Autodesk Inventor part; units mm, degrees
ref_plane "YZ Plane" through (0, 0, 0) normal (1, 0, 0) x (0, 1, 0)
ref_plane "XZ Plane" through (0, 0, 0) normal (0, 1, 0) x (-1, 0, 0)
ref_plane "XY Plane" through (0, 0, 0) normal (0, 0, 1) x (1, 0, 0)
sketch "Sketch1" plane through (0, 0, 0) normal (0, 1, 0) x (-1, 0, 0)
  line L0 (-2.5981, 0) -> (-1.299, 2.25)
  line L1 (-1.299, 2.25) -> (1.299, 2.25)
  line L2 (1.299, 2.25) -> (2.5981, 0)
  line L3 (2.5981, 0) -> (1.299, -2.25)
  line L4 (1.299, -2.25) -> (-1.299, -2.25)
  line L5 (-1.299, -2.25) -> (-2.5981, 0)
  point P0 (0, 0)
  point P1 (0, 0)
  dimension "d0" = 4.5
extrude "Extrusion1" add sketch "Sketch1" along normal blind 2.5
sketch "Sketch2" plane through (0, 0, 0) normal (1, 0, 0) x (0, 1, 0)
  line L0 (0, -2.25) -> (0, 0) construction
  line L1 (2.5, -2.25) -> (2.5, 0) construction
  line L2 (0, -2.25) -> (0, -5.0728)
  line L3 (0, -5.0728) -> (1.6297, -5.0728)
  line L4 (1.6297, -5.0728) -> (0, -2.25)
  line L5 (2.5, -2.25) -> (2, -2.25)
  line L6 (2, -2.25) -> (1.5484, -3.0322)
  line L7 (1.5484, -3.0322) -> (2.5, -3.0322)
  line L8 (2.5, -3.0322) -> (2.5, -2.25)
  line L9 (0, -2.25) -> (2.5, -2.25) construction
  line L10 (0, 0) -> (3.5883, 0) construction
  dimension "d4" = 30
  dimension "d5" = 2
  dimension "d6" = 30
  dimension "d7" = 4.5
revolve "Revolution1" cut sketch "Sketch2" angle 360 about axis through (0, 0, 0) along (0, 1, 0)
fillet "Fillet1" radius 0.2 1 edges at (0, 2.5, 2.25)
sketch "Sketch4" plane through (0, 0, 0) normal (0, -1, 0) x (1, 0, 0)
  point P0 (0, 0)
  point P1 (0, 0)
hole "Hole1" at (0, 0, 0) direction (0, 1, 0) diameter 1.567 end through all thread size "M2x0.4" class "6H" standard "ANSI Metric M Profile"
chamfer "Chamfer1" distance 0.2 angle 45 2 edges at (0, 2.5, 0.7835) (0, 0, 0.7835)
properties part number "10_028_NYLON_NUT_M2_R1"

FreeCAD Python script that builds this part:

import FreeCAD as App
import Part
import Sketcher

V = App.Vector
Q = App.Units.Quantity


def edges_at(feature, points):
    """Names of the edges that pass closest to the given points."""
    edges = feature.Shape.Edges
    near = lambda p: min(range(len(edges)), key=lambda i: edges[i].distToShape(Part.Vertex(*p))[0])
    return sorted({f"Edge{near(p) + 1}" for p in points})

doc = App.newDocument("Part")
params = doc.addObject("Spreadsheet::Sheet", "Params")
for row, (alias, value) in enumerate([
    ("pad1_length", "2.5 mm"),
    ("sketch2_width", "0.5 mm"),
    ("groove_angle", "360 deg"),
    ("fillet_radius", "0.2 mm"),
    ("hole_diameter", "1.567 mm"),
    ("chamfer_size", "0.2 mm"),
], start=1):
    params.set(f"A{row}", alias)
    params.set(f"B{row}", "=" + value)
    params.setAlias(f"B{row}", alias)

body = doc.addObject("PartDesign::Body", "Body")

sketch1 = body.newObject("Sketcher::SketchObject", "Sketch")
sketch1.AttachmentSupport = (doc.getObject("XZ_Plane"), [""])
sketch1.MapMode = "FlatFace"
sketch1.addGeometry([
    Part.LineSegment(V(1.299, 2.25, 0), V(2.5981, 0, 0)),
    Part.LineSegment(V(2.5981, 0, 0), V(1.299, -2.25, 0)),
    Part.LineSegment(V(1.299, -2.25, 0), V(-1.299, -2.25, 0)),
    Part.LineSegment(V(-1.299, -2.25, 0), V(-2.5981, 0, 0)),
    Part.LineSegment(V(-2.5981, 0, 0), V(-1.299, 2.25, 0)),
    Part.LineSegment(V(-1.299, 2.25, 0), V(1.299, 2.25, 0)),
], False)
sketch1.addConstraint([
    Sketcher.Constraint("Coincident", 0, 2, 1, 1),
    Sketcher.Constraint("Coincident", 1, 2, 2, 1),
    Sketcher.Constraint("Coincident", 2, 2, 3, 1),
    Sketcher.Constraint("Coincident", 3, 2, 4, 1),
    Sketcher.Constraint("Coincident", 4, 2, 5, 1),
    Sketcher.Constraint("Coincident", 5, 2, 0, 1),
    Sketcher.Constraint("Horizontal", 2),
    Sketcher.Constraint("Horizontal", 5),
    Sketcher.Constraint("Symmetric", 0, 2, 3, 2, -1, 1),
    Sketcher.Constraint("Symmetric", 1, 2, 4, 2, -1, 1),
    Sketcher.Constraint("PointOnObject", 0, 2, -1),
    Sketcher.Constraint("Parallel", 0, 3),
    Sketcher.Constraint("Vertical", 2, 2, 4, 2),
    Sketcher.Constraint("DistanceY", 2, 2, 4, 2, 4.5),
    Sketcher.Constraint("Angle", 0, Q("-59.9988 deg")),
    Sketcher.Constraint("DistanceX", 2, 2, 2, 1, 2.598),
])
pad1 = body.newObject("PartDesign::Pad", "Pad")
pad1.Profile = sketch1
pad1.setExpression("Length", "Params.pad1_length")
pad1.Reversed = True

sketch2 = body.newObject("Sketcher::SketchObject", "Sketch001")
sketch2.AttachmentSupport = (doc.getObject("YZ_Plane"), [""])
sketch2.MapMode = "FlatFace"
sketch2.addGeometry([
    Part.LineSegment(V(1.6297, -5.0728, 0), V(0, -2.25, 0)),
    Part.LineSegment(V(0, -2.25, 0), V(0, -5.0728, 0)),
    Part.LineSegment(V(0, -5.0728, 0), V(1.6297, -5.0728, 0)),
    Part.LineSegment(V(2.5, -3.0322, 0), V(2.5, -2.25, 0)),
    Part.LineSegment(V(2.5, -2.25, 0), V(2, -2.25, 0)),
    Part.LineSegment(V(2, -2.25, 0), V(1.5484, -3.0322, 0)),
    Part.LineSegment(V(1.5484, -3.0322, 0), V(2.5, -3.0322, 0)),
], False)
sketch2.addConstraint([
    Sketcher.Constraint("Coincident", 0, 2, 1, 1),
    Sketcher.Constraint("Coincident", 1, 2, 2, 1),
    Sketcher.Constraint("Coincident", 2, 2, 0, 1),
    Sketcher.Constraint("Coincident", 3, 2, 4, 1),
    Sketcher.Constraint("Coincident", 4, 2, 5, 1),
    Sketcher.Constraint("Coincident", 5, 2, 6, 1),
    Sketcher.Constraint("Coincident", 6, 2, 3, 1),
    Sketcher.Constraint("Vertical", 1),
    Sketcher.Constraint("Horizontal", 2),
    Sketcher.Constraint("Vertical", 3),
    Sketcher.Constraint("Horizontal", 4),
    Sketcher.Constraint("Horizontal", 6),
    Sketcher.Constraint("PointOnObject", 0, 2, -2),
    Sketcher.Constraint("Horizontal", 0, 2, 3, 2),
    Sketcher.Constraint("DistanceX", -1, 1, 4, 2, 2.0),
    Sketcher.Constraint("Angle", 0, Q("119.9993 deg")),
    Sketcher.Constraint("Angle", 5, Q("-119.9998 deg")),
    Sketcher.Constraint("DistanceX", 4, 2, 4, 1, 0.5),
    Sketcher.Constraint("DistanceY", 0, 2, -1, 1, 2.25),
    Sketcher.Constraint("DistanceX", 2, 1, 2, 2, 1.6297),
    Sketcher.Constraint("DistanceX", 6, 1, 6, 2, 0.9516),
])
sketch2.setExpression("Constraints[17]", "Params.sketch2_width")
groove = body.newObject("PartDesign::Groove", "Groove")
groove.Profile = sketch2
groove.ReferenceAxis = (sketch2, ["H_Axis"])
groove.setExpression("Angle", "Params.groove_angle")
doc.recompute()

fillet = body.newObject("PartDesign::Fillet", "Fillet")
fillet.Base = (groove, edges_at(groove, [(0, 2.5, 2.25)]))
fillet.setExpression("Radius", "Params.fillet_radius")

sketch3 = body.newObject("Sketcher::SketchObject", "Sketch002")
sketch3.AttachmentSupport = (doc.getObject("XZ_Plane"), [""])
sketch3.MapMode = "FlatFace"
sketch3.addGeometry(Part.Circle(V(0, 0, 0), V(0, 0, 1), 0.7835), False)
sketch3.addConstraint([
    Sketcher.Constraint("Coincident", 0, 3, -1, 1),
    Sketcher.Constraint("Diameter", 0, 1.567),
])
doc.recompute()
hole = body.newObject("PartDesign::Hole", "Hole")
hole.Profile = sketch3
hole.ThreadType = "None"
hole.setExpression("Diameter", "Params.hole_diameter")
hole.DepthType = "ThroughAll"
doc.recompute()

chamfer = body.newObject("PartDesign::Chamfer", "Chamfer")
chamfer.Base = (hole, edges_at(hole, [(0, 2.5, 0.783), (0, 0, 0.783)]))
chamfer.setExpression("Size", "Params.chamfer_size")

doc.recompute()
